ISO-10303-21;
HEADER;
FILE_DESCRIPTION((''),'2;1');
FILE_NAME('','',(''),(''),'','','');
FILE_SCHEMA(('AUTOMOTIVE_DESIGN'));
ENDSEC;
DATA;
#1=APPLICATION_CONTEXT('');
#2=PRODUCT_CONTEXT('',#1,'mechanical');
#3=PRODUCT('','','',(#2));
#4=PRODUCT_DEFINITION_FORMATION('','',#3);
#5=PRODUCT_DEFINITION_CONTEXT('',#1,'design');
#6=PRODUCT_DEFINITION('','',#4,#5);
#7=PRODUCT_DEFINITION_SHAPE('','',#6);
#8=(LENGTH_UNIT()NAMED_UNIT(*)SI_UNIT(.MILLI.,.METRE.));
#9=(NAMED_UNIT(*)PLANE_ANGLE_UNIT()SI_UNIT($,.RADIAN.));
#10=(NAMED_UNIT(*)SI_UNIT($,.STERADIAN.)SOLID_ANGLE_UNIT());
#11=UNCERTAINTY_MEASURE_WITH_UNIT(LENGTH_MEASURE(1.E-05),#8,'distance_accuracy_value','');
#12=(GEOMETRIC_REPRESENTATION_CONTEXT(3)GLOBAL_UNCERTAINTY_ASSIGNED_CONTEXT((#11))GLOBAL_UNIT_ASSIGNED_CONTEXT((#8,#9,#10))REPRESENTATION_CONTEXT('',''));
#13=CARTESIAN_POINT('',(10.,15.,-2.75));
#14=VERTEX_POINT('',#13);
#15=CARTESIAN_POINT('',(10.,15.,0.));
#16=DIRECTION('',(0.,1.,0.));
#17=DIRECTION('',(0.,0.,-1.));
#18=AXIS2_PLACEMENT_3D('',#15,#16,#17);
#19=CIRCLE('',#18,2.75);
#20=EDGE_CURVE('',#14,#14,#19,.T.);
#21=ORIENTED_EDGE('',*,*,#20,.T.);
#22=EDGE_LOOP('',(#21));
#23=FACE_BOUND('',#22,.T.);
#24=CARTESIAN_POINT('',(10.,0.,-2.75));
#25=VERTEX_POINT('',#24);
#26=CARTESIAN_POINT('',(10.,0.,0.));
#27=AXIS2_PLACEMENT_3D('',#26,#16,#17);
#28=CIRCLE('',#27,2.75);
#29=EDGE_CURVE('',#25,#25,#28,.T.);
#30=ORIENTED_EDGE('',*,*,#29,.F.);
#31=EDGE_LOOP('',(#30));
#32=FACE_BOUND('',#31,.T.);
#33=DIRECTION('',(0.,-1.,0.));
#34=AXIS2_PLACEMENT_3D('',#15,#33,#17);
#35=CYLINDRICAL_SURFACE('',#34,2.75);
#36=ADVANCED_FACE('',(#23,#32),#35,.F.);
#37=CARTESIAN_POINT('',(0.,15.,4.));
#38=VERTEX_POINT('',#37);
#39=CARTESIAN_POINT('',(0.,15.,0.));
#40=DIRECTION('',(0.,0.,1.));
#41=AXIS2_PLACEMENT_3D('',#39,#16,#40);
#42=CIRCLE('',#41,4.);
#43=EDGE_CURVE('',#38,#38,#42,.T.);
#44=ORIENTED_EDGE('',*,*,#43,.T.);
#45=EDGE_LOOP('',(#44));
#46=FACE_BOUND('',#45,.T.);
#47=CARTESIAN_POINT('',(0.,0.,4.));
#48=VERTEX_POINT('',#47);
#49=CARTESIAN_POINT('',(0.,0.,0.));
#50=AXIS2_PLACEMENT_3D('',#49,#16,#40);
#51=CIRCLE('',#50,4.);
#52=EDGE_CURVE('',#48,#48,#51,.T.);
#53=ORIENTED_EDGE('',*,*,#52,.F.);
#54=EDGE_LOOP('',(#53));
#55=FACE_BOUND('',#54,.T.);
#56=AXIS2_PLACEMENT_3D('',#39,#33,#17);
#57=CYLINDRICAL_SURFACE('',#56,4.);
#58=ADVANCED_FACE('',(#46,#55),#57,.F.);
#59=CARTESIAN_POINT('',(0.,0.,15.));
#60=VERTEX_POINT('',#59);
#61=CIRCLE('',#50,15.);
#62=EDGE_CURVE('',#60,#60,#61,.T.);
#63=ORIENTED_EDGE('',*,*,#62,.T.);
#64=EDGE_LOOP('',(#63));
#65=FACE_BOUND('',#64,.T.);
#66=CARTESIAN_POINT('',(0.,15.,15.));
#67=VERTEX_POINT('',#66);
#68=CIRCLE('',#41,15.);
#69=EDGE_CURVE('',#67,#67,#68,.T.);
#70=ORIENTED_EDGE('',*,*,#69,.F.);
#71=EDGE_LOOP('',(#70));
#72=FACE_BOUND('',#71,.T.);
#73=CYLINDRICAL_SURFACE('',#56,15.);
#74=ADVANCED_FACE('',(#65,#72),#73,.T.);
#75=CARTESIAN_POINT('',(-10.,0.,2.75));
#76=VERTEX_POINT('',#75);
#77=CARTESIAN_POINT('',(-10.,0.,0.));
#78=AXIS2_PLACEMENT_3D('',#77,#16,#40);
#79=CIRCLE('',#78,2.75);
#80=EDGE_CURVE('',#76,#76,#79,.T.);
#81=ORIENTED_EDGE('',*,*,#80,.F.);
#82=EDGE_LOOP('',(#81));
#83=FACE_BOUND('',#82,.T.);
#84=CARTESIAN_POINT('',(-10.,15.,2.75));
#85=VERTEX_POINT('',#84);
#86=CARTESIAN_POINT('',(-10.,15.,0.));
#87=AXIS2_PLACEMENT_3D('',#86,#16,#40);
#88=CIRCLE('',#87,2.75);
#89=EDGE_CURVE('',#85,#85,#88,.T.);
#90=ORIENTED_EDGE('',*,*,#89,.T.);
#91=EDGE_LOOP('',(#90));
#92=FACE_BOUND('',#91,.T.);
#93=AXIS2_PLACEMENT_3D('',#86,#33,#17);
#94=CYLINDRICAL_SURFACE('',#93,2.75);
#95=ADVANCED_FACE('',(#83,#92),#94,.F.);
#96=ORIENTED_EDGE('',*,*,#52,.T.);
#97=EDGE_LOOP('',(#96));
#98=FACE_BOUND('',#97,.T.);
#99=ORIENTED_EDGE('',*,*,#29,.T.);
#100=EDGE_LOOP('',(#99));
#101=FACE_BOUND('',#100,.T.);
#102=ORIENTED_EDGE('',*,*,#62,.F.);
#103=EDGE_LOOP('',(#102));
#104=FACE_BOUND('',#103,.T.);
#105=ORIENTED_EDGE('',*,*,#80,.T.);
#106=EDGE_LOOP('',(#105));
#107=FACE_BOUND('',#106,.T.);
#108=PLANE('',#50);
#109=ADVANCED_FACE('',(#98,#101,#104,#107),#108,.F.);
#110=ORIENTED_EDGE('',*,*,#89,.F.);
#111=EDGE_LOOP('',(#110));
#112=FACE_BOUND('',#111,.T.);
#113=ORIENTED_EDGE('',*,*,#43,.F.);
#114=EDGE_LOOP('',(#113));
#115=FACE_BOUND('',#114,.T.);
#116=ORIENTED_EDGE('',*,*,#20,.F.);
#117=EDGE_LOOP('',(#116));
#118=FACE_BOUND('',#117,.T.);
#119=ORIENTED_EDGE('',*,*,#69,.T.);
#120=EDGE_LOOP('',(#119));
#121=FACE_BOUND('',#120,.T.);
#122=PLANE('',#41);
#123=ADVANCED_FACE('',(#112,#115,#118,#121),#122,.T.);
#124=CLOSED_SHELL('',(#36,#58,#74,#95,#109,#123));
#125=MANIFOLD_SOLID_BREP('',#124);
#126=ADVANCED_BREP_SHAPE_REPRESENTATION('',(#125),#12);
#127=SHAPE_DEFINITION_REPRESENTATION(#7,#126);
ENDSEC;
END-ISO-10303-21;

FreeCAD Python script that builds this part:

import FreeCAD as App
import Part
import Sketcher
from FreeCAD import Vector

doc = App.newDocument("Part")
body = doc.addObject("PartDesign::Body", "Body")

# Sketch on XZ plane
sketch1 = body.newObject("Sketcher::SketchObject", "Sketch")
sketch1.AttachmentSupport = (doc.getObject("XZ_Plane"), [""])
sketch1.MapMode = "FlatFace"
sketch1.addGeometry([
    Part.Circle(Vector(0, 0, 0), Vector(0, 0, 1), 15),
    Part.Circle(Vector(-10, 0, 0), Vector(0, 0, 1), 2.8),
    Part.Circle(Vector(10, 0, 0), Vector(0, 0, 1), 2.8),
    Part.Circle(Vector(0, 0, 0), Vector(0, 0, 1), 4),
], False)
sketch1.addConstraint([
    Sketcher.Constraint("Coincident", 0, 3, -1, 1),
    Sketcher.Constraint("Coincident", 3, 3, -1, 1),
    Sketcher.Constraint("Equal", 1, 2),
    Sketcher.Constraint("Symmetric", 1, 3, 2, 3, -1, 1),
    Sketcher.Constraint("PointOnObject", 1, 3, -1),
    Sketcher.Constraint("Diameter", 0, 30.0),
    Sketcher.Constraint("Diameter", 3, 8.0),
    Sketcher.Constraint("Diameter", 1, 5.5),
    Sketcher.Constraint("DistanceX", 1, 3, -1, 1, 10.0),
])
pad1 = body.newObject("PartDesign::Pad", "Pad")
pad1.Profile = sketch1
pad1.Length = 15
pad1.Reversed = True

doc.recompute()
